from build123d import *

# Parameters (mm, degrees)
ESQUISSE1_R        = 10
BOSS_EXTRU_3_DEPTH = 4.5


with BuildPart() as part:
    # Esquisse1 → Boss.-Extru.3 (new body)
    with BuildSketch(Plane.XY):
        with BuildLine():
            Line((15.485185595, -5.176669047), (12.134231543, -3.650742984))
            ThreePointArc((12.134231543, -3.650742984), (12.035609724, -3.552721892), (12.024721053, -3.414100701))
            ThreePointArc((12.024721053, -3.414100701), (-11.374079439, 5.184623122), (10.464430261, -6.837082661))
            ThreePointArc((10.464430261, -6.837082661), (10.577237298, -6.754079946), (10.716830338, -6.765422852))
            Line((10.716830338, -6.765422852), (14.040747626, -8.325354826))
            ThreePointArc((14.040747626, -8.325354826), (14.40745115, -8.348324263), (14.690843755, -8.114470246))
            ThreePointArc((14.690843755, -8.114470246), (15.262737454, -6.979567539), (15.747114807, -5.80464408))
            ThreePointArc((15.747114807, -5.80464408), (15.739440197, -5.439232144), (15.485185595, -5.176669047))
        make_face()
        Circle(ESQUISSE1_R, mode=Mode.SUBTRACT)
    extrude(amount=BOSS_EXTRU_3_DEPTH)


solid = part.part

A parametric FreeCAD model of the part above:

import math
import FreeCAD as App
import Part
import Sketcher
from FreeCAD import Vector

doc = App.newDocument("Part")
body = doc.addObject("PartDesign::Body", "Body")

# Sketch on XY plane
sketch1 = body.newObject("Sketcher::SketchObject", "Sketch")
sketch1.AttachmentSupport = (doc.getObject("XY_Plane"), [""])
sketch1.MapMode = "FlatFace"
sketch1.addGeometry([
    Part.LineSegment(Vector(15.485186, -5.176669, 0), Vector(12.134232, -3.650743, 0)),  # 0
    Part.ArcOfCircle(Part.Circle(Vector(12.217117, -3.468726, 0), Vector(0, 0, 1), 0.2), math.radians(164.149511), math.radians(245.516874)),  # 1
    Part.ArcOfCircle(Part.Circle(Vector(0, 0, 0), Vector(0, 0, 1), 12.5), math.radians(-15.85049), math.radians(326.840842)),  # 2
    Part.ArcOfCircle(Part.Circle(Vector(10.631861, -6.946476, 0), Vector(0, 0, 1), 0.2), math.radians(64.859087), math.radians(146.840842)),  # 3
    Part.LineSegment(Vector(10.71683, -6.765423, 0), Vector(14.040748, -8.325355, 0)),  # 4
    Part.ArcOfCircle(Part.Circle(Vector(14.253171, -7.872722, 0), Vector(0, 0, 1), 0.5), math.radians(-115.140914), math.radians(-28.914014)),  # 5
    Part.ArcOfCircle(Part.Circle(Vector(0, 0, 0), Vector(0, 0, 1), 16.782894), math.radians(-28.914014), math.radians(-20.234712)),  # 6
    Part.ArcOfCircle(Part.Circle(Vector(15.277973, -5.631711, 0), Vector(0, 0, 1), 0.5), math.radians(-20.234711), math.radians(65.516874)),  # 7
    Part.Circle(Vector(0, 0, 0), Vector(0, 0, 1), 10),  # 8
], False)
sketch1.addConstraint([
    Sketcher.Constraint("Tangent", 0, 2, 1, 2),
    Sketcher.Constraint("Tangent", 1, 1, 2, 1),
    Sketcher.Constraint("Tangent", 2, 2, 3, 2),
    Sketcher.Constraint("Tangent", 3, 1, 4, 1),
    Sketcher.Constraint("Tangent", 4, 2, 5, 1),
    Sketcher.Constraint("Tangent", 5, 2, 6, 1),
    Sketcher.Constraint("Tangent", 6, 2, 7, 1),
    Sketcher.Constraint("Tangent", 7, 2, 0, 1),
    Sketcher.Constraint("Coincident", 2, 3, -1, 1),
    Sketcher.Constraint("Coincident", 6, 3, -1, 1),
    Sketcher.Constraint("Coincident", 8, 3, -1, 1),
    Sketcher.Constraint("Equal", 1, 3),
    Sketcher.Constraint("Equal", 5, 7),
    Sketcher.Constraint("Diameter", 8, 20.0),
    Sketcher.Constraint("Radius", 1, 0.2),
    Sketcher.Constraint("Radius", 2, 12.5),
    Sketcher.Constraint("Radius", 5, 0.5),
    Sketcher.Constraint("Radius", 6, 16.782894),
    Sketcher.Constraint("DistanceY", 1, 1, -1, 1, 3.414101),
    Sketcher.Constraint("DistanceX", 2, 2, 0, 2, 1.669801),
    Sketcher.Constraint("DistanceX", 2, 2, 3, 1, 0.2524),
    Sketcher.Constraint("DistanceY", 6, 2, 0, 2, 2.153901),
])
pad1 = body.newObject("PartDesign::Pad", "Pad")
pad1.Profile = sketch1
pad1.Length = 4.5

doc.recompute()
